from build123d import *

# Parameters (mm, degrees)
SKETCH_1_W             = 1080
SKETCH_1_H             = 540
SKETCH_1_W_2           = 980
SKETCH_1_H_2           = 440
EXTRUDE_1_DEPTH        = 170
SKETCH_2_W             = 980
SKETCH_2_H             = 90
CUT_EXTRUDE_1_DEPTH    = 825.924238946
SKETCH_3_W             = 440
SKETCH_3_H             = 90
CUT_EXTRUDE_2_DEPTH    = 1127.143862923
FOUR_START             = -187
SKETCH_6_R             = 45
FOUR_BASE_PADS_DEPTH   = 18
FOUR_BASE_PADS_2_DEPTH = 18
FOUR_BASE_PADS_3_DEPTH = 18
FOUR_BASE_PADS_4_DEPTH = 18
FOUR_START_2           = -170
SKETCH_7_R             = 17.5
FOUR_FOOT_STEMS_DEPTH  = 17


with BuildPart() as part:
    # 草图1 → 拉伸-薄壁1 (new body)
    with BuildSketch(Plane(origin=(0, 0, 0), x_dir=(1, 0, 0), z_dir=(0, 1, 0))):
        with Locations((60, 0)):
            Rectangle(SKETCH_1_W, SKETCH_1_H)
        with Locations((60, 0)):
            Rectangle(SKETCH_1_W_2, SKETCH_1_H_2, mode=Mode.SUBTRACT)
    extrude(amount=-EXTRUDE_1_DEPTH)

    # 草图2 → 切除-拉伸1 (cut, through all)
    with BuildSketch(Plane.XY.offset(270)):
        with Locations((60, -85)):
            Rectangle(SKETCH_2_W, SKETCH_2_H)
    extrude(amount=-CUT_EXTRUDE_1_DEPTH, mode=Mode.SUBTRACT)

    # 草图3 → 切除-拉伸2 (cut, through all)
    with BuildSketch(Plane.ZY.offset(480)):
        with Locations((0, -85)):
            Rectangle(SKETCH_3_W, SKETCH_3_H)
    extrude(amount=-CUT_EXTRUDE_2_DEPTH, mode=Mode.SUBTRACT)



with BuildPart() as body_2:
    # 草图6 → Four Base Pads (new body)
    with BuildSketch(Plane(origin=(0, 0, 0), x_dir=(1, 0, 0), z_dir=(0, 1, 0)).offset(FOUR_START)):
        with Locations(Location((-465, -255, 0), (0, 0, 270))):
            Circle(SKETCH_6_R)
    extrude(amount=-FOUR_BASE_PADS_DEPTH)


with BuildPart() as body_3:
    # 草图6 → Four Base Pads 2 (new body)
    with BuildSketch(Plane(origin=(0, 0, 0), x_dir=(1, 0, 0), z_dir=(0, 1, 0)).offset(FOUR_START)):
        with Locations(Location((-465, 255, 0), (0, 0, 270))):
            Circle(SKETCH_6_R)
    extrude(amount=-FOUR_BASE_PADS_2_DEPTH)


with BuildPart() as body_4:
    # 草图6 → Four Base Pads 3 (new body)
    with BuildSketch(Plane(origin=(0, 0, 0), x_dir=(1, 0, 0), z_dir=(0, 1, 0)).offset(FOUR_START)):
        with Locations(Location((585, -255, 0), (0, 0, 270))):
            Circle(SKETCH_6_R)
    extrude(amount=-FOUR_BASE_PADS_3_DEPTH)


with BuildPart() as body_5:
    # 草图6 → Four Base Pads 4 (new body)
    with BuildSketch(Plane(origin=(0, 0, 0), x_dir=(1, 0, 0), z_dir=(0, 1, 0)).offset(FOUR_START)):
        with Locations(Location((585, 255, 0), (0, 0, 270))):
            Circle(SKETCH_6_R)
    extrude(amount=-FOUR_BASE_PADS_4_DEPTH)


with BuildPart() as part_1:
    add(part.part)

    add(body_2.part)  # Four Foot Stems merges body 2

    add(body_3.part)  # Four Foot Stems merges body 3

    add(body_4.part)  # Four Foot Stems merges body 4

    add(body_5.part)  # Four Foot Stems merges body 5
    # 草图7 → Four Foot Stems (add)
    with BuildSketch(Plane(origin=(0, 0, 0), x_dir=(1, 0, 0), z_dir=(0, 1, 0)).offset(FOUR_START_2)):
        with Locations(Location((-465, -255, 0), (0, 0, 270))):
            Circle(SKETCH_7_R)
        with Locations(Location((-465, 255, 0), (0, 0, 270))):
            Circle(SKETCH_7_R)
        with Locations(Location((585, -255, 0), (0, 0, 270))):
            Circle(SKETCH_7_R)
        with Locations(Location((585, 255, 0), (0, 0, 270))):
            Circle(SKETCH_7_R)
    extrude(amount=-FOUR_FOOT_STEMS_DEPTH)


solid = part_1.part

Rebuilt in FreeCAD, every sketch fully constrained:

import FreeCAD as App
import Part
import Sketcher

V = App.Vector

doc = App.newDocument("Part")
body = doc.addObject("PartDesign::Body", "Body")

sketch1 = doc.addObject("Sketcher::SketchObject", "Sketch")
body.addObject(sketch1)
sketch1.AttachmentSupport = (doc.XZ_Plane, [""])
sketch1.MapMode = "FlatFace"
sketch1.addGeometry(Part.LineSegment(V(-480, -270, 0), V(-480, 270, 0)), False)
sketch1.addGeometry(Part.LineSegment(V(-480, 270, 0), V(600, 270, 0)), False)
sketch1.addGeometry(Part.LineSegment(V(600, 270, 0), V(600, -270, 0)), False)
sketch1.addGeometry(Part.LineSegment(V(600, -270, 0), V(-480, -270, 0)), False)
sketch1.addGeometry(Part.LineSegment(V(550, 220, 0), V(-430, 220, 0)), False)
sketch1.addGeometry(Part.LineSegment(V(-430, 220, 0), V(-430, -220, 0)), False)
sketch1.addGeometry(Part.LineSegment(V(-430, -220, 0), V(550, -220, 0)), False)
sketch1.addGeometry(Part.LineSegment(V(550, -220, 0), V(550, 220, 0)), False)
sketch1.addConstraint(Sketcher.Constraint("Coincident", 0, 2, 1, 1))
sketch1.addConstraint(Sketcher.Constraint("Coincident", 1, 2, 2, 1))
sketch1.addConstraint(Sketcher.Constraint("Coincident", 2, 2, 3, 1))
sketch1.addConstraint(Sketcher.Constraint("Coincident", 3, 2, 0, 1))
sketch1.addConstraint(Sketcher.Constraint("Coincident", 4, 2, 5, 1))
sketch1.addConstraint(Sketcher.Constraint("Coincident", 5, 2, 6, 1))
sketch1.addConstraint(Sketcher.Constraint("Coincident", 6, 2, 7, 1))
sketch1.addConstraint(Sketcher.Constraint("Coincident", 7, 2, 4, 1))
sketch1.addConstraint(Sketcher.Constraint("Vertical", 0))
sketch1.addConstraint(Sketcher.Constraint("Horizontal", 1))
sketch1.addConstraint(Sketcher.Constraint("Vertical", 2))
sketch1.addConstraint(Sketcher.Constraint("Horizontal", 3))
sketch1.addConstraint(Sketcher.Constraint("Horizontal", 4))
sketch1.addConstraint(Sketcher.Constraint("Vertical", 5))
sketch1.addConstraint(Sketcher.Constraint("Horizontal", 6))
sketch1.addConstraint(Sketcher.Constraint("Vertical", 7))
sketch1.addConstraint(Sketcher.Constraint("DistanceX", 1, 1, 1, 2, 1080.0))
sketch1.addConstraint(Sketcher.Constraint("DistanceX", 4, 2, 4, 1, 980.0))
sketch1.addConstraint(Sketcher.Constraint("DistanceY", 0, 1, 0, 2, 540.0))
sketch1.addConstraint(Sketcher.Constraint("DistanceY", 5, 2, 5, 1, 440.0))
sketch1.addConstraint(Sketcher.Constraint("DistanceX", 0, 2, -1, 1, 480.0))
sketch1.addConstraint(Sketcher.Constraint("DistanceY", -1, 1, 0, 2, 270.0))
sketch1.addConstraint(Sketcher.Constraint("DistanceX", 4, 2, -1, 1, 430.0))
sketch1.addConstraint(Sketcher.Constraint("DistanceY", -1, 1, 4, 2, 220.0))
pad1 = doc.addObject("PartDesign::Pad", "Pad")
body.addObject(pad1)
pad1.Profile = sketch1
pad1.Length = 170

sketch2 = doc.addObject("Sketcher::SketchObject", "Sketch001")
body.addObject(sketch2)
sketch2.AttachmentSupport = (doc.XY_Plane, [""])
sketch2.MapMode = "FlatFace"
sketch2.AttachmentOffset = App.Placement(V(0, 0, 270), App.Rotation())
sketch2.addGeometry(Part.LineSegment(V(-430, -40, 0), V(-430, -130, 0)), False)
sketch2.addGeometry(Part.LineSegment(V(-430, -130, 0), V(550, -130, 0)), False)
sketch2.addGeometry(Part.LineSegment(V(550, -130, 0), V(550, -40, 0)), False)
sketch2.addGeometry(Part.LineSegment(V(550, -40, 0), V(-430, -40, 0)), False)
sketch2.addConstraint(Sketcher.Constraint("Coincident", 0, 2, 1, 1))
sketch2.addConstraint(Sketcher.Constraint("Coincident", 1, 2, 2, 1))
sketch2.addConstraint(Sketcher.Constraint("Coincident", 2, 2, 3, 1))
sketch2.addConstraint(Sketcher.Constraint("Coincident", 3, 2, 0, 1))
sketch2.addConstraint(Sketcher.Constraint("Vertical", 0))
sketch2.addConstraint(Sketcher.Constraint("Horizontal", 1))
sketch2.addConstraint(Sketcher.Constraint("Vertical", 2))
sketch2.addConstraint(Sketcher.Constraint("Horizontal", 3))
sketch2.addConstraint(Sketcher.Constraint("DistanceX", 1, 1, 1, 2, 980.0))
sketch2.addConstraint(Sketcher.Constraint("DistanceY", 0, 2, 0, 1, 90.0))
sketch2.addConstraint(Sketcher.Constraint("DistanceX", 0, 2, -1, 1, 430.0))
sketch2.addConstraint(Sketcher.Constraint("DistanceY", 0, 2, -1, 1, 130.0))
pocket1 = doc.addObject("PartDesign::Pocket", "Pocket")
body.addObject(pocket1)
pocket1.Profile = sketch2
pocket1.Type = "ThroughAll"

sketch3 = doc.addObject("Sketcher::SketchObject", "Sketch002")
body.addObject(sketch3)
sketch3.AttachmentSupport = (doc.YZ_Plane, [""])
sketch3.MapMode = "FlatFace"
sketch3.AttachmentOffset = App.Placement(V(0, 0, -480), App.Rotation())
sketch3.addGeometry(Part.LineSegment(V(-40, -220, 0), V(-130, -220, 0)), False)
sketch3.addGeometry(Part.LineSegment(V(-130, -220, 0), V(-130, 220, 0)), False)
sketch3.addGeometry(Part.LineSegment(V(-130, 220, 0), V(-40, 220, 0)), False)
sketch3.addGeometry(Part.LineSegment(V(-40, 220, 0), V(-40, -220, 0)), False)
sketch3.addConstraint(Sketcher.Constraint("Coincident", 0, 2, 1, 1))
sketch3.addConstraint(Sketcher.Constraint("Coincident", 1, 2, 2, 1))
sketch3.addConstraint(Sketcher.Constraint("Coincident", 2, 2, 3, 1))
sketch3.addConstraint(Sketcher.Constraint("Coincident", 3, 2, 0, 1))
sketch3.addConstraint(Sketcher.Constraint("Horizontal", 0))
sketch3.addConstraint(Sketcher.Constraint("Vertical", 1))
sketch3.addConstraint(Sketcher.Constraint("Horizontal", 2))
sketch3.addConstraint(Sketcher.Constraint("Vertical", 3))
sketch3.addConstraint(Sketcher.Constraint("DistanceX", 0, 2, 0, 1, 90.0))
sketch3.addConstraint(Sketcher.Constraint("DistanceY", 1, 1, 1, 2, 440.0))
sketch3.addConstraint(Sketcher.Constraint("DistanceX", 0, 2, -1, 1, 130.0))
sketch3.addConstraint(Sketcher.Constraint("DistanceY", 0, 2, -1, 1, 220.0))
pocket2 = doc.addObject("PartDesign::Pocket", "Pocket001")
body.addObject(pocket2)
pocket2.Profile = sketch3
pocket2.Type = "ThroughAll"
pocket2.Reversed = True
body2 = doc.addObject("PartDesign::Body", "Body001")

sketch4 = doc.addObject("Sketcher::SketchObject", "Sketch003")
body2.addObject(sketch4)
sketch4.AttachmentSupport = (doc.getObject("XZ_Plane001"), [""])
sketch4.MapMode = "FlatFace"
sketch4.AttachmentOffset = App.Placement(V(0, 0, 187), App.Rotation())
sketch4.addGeometry(Part.Circle(V(-465, 255, 0), V(0, 0, 1), 45), False)
sketch4.addConstraint(Sketcher.Constraint("Diameter", 0, 90.0))
sketch4.addConstraint(Sketcher.Constraint("DistanceX", 0, 3, -1, 1, 465.0))
sketch4.addConstraint(Sketcher.Constraint("DistanceY", -1, 1, 0, 3, 255.0))
pad2 = doc.addObject("PartDesign::Pad", "Pad001")
body2.addObject(pad2)
pad2.Profile = sketch4
pad2.Length = 18
body3 = doc.addObject("PartDesign::Body", "Body002")

sketch5 = doc.addObject("Sketcher::SketchObject", "Sketch004")
body3.addObject(sketch5)
sketch5.AttachmentSupport = (doc.getObject("XZ_Plane002"), [""])
sketch5.MapMode = "FlatFace"
sketch5.AttachmentOffset = App.Placement(V(0, 0, 187), App.Rotation())
sketch5.addGeometry(Part.Circle(V(-465, -255, 0), V(0, 0, 1), 45), False)
sketch5.addConstraint(Sketcher.Constraint("Diameter", 0, 90.0))
sketch5.addConstraint(Sketcher.Constraint("DistanceX", 0, 3, -1, 1, 465.0))
sketch5.addConstraint(Sketcher.Constraint("DistanceY", 0, 3, -1, 1, 255.0))
pad3 = doc.addObject("PartDesign::Pad", "Pad002")
body3.addObject(pad3)
pad3.Profile = sketch5
pad3.Length = 18
body4 = doc.addObject("PartDesign::Body", "Body003")

sketch6 = doc.addObject("Sketcher::SketchObject", "Sketch005")
body4.addObject(sketch6)
sketch6.AttachmentSupport = (doc.getObject("XZ_Plane003"), [""])
sketch6.MapMode = "FlatFace"
sketch6.AttachmentOffset = App.Placement(V(0, 0, 187), App.Rotation())
sketch6.addGeometry(Part.Circle(V(585, 255, 0), V(0, 0, 1), 45), False)
sketch6.addConstraint(Sketcher.Constraint("Diameter", 0, 90.0))
sketch6.addConstraint(Sketcher.Constraint("DistanceX", -1, 1, 0, 3, 585.0))
sketch6.addConstraint(Sketcher.Constraint("DistanceY", -1, 1, 0, 3, 255.0))
pad4 = doc.addObject("PartDesign::Pad", "Pad003")
body4.addObject(pad4)
pad4.Profile = sketch6
pad4.Length = 18
body5 = doc.addObject("PartDesign::Body", "Body004")

sketch7 = doc.addObject("Sketcher::SketchObject", "Sketch006")
body5.addObject(sketch7)
sketch7.AttachmentSupport = (doc.getObject("XZ_Plane004"), [""])
sketch7.MapMode = "FlatFace"
sketch7.AttachmentOffset = App.Placement(V(0, 0, 187), App.Rotation())
sketch7.addGeometry(Part.Circle(V(585, -255, 0), V(0, 0, 1), 45), False)
sketch7.addConstraint(Sketcher.Constraint("Diameter", 0, 90.0))
sketch7.addConstraint(Sketcher.Constraint("DistanceX", -1, 1, 0, 3, 585.0))
sketch7.addConstraint(Sketcher.Constraint("DistanceY", 0, 3, -1, 1, 255.0))
pad5 = doc.addObject("PartDesign::Pad", "Pad004")
body5.addObject(pad5)
pad5.Profile = sketch7
pad5.Length = 18
body.AllowCompound = True
doc.recompute()

boolean = doc.addObject("PartDesign::Boolean", "Boolean")
body.addObject(boolean)
boolean.Type = "Fuse"
boolean.addObjects([body2])
doc.recompute()

boolean2 = doc.addObject("PartDesign::Boolean", "Boolean001")
body.addObject(boolean2)
boolean2.Type = "Fuse"
boolean2.addObjects([body3])
doc.recompute()

boolean3 = doc.addObject("PartDesign::Boolean", "Boolean002")
body.addObject(boolean3)
boolean3.Type = "Fuse"
boolean3.addObjects([body4])
doc.recompute()

boolean4 = doc.addObject("PartDesign::Boolean", "Boolean003")
body.addObject(boolean4)
boolean4.Type = "Fuse"
boolean4.addObjects([body5])

sketch8 = doc.addObject("Sketcher::SketchObject", "Sketch007")
body.addObject(sketch8)
sketch8.AttachmentSupport = (doc.XZ_Plane, [""])
sketch8.MapMode = "FlatFace"
sketch8.AttachmentOffset = App.Placement(V(0, 0, 170), App.Rotation())
sketch8.addGeometry(Part.Circle(V(-465, 255, 0), V(0, 0, 1), 18), False)
sketch8.addGeometry(Part.Circle(V(-465, -255, 0), V(0, 0, 1), 18), False)
sketch8.addGeometry(Part.Circle(V(585, 255, 0), V(0, 0, 1), 18), False)
sketch8.addGeometry(Part.Circle(V(585, -255, 0), V(0, 0, 1), 18), False)
sketch8.addConstraint(Sketcher.Constraint("Equal", 0, 1))
sketch8.addConstraint(Sketcher.Constraint("Equal", 1, 2))
sketch8.addConstraint(Sketcher.Constraint("Equal", 2, 3))
sketch8.addConstraint(Sketcher.Constraint("Symmetric", 0, 3, 1, 3, -1))
sketch8.addConstraint(Sketcher.Constraint("Symmetric", 2, 3, 3, 3, -1))
sketch8.addConstraint(Sketcher.Constraint("Horizontal", 0, 3, 2, 3))
sketch8.addConstraint(Sketcher.Constraint("Diameter", 0, 35.0))
sketch8.addConstraint(Sketcher.Constraint("DistanceX", 0, 3, -1, 1, 465.0))
sketch8.addConstraint(Sketcher.Constraint("DistanceY", -1, 1, 0, 3, 255.0))
sketch8.addConstraint(Sketcher.Constraint("DistanceX", -1, 1, 2, 3, 585.0))
pad6 = doc.addObject("PartDesign::Pad", "Pad005")
body.addObject(pad6)
pad6.Profile = sketch8
pad6.Length = 17

doc.recompute()
